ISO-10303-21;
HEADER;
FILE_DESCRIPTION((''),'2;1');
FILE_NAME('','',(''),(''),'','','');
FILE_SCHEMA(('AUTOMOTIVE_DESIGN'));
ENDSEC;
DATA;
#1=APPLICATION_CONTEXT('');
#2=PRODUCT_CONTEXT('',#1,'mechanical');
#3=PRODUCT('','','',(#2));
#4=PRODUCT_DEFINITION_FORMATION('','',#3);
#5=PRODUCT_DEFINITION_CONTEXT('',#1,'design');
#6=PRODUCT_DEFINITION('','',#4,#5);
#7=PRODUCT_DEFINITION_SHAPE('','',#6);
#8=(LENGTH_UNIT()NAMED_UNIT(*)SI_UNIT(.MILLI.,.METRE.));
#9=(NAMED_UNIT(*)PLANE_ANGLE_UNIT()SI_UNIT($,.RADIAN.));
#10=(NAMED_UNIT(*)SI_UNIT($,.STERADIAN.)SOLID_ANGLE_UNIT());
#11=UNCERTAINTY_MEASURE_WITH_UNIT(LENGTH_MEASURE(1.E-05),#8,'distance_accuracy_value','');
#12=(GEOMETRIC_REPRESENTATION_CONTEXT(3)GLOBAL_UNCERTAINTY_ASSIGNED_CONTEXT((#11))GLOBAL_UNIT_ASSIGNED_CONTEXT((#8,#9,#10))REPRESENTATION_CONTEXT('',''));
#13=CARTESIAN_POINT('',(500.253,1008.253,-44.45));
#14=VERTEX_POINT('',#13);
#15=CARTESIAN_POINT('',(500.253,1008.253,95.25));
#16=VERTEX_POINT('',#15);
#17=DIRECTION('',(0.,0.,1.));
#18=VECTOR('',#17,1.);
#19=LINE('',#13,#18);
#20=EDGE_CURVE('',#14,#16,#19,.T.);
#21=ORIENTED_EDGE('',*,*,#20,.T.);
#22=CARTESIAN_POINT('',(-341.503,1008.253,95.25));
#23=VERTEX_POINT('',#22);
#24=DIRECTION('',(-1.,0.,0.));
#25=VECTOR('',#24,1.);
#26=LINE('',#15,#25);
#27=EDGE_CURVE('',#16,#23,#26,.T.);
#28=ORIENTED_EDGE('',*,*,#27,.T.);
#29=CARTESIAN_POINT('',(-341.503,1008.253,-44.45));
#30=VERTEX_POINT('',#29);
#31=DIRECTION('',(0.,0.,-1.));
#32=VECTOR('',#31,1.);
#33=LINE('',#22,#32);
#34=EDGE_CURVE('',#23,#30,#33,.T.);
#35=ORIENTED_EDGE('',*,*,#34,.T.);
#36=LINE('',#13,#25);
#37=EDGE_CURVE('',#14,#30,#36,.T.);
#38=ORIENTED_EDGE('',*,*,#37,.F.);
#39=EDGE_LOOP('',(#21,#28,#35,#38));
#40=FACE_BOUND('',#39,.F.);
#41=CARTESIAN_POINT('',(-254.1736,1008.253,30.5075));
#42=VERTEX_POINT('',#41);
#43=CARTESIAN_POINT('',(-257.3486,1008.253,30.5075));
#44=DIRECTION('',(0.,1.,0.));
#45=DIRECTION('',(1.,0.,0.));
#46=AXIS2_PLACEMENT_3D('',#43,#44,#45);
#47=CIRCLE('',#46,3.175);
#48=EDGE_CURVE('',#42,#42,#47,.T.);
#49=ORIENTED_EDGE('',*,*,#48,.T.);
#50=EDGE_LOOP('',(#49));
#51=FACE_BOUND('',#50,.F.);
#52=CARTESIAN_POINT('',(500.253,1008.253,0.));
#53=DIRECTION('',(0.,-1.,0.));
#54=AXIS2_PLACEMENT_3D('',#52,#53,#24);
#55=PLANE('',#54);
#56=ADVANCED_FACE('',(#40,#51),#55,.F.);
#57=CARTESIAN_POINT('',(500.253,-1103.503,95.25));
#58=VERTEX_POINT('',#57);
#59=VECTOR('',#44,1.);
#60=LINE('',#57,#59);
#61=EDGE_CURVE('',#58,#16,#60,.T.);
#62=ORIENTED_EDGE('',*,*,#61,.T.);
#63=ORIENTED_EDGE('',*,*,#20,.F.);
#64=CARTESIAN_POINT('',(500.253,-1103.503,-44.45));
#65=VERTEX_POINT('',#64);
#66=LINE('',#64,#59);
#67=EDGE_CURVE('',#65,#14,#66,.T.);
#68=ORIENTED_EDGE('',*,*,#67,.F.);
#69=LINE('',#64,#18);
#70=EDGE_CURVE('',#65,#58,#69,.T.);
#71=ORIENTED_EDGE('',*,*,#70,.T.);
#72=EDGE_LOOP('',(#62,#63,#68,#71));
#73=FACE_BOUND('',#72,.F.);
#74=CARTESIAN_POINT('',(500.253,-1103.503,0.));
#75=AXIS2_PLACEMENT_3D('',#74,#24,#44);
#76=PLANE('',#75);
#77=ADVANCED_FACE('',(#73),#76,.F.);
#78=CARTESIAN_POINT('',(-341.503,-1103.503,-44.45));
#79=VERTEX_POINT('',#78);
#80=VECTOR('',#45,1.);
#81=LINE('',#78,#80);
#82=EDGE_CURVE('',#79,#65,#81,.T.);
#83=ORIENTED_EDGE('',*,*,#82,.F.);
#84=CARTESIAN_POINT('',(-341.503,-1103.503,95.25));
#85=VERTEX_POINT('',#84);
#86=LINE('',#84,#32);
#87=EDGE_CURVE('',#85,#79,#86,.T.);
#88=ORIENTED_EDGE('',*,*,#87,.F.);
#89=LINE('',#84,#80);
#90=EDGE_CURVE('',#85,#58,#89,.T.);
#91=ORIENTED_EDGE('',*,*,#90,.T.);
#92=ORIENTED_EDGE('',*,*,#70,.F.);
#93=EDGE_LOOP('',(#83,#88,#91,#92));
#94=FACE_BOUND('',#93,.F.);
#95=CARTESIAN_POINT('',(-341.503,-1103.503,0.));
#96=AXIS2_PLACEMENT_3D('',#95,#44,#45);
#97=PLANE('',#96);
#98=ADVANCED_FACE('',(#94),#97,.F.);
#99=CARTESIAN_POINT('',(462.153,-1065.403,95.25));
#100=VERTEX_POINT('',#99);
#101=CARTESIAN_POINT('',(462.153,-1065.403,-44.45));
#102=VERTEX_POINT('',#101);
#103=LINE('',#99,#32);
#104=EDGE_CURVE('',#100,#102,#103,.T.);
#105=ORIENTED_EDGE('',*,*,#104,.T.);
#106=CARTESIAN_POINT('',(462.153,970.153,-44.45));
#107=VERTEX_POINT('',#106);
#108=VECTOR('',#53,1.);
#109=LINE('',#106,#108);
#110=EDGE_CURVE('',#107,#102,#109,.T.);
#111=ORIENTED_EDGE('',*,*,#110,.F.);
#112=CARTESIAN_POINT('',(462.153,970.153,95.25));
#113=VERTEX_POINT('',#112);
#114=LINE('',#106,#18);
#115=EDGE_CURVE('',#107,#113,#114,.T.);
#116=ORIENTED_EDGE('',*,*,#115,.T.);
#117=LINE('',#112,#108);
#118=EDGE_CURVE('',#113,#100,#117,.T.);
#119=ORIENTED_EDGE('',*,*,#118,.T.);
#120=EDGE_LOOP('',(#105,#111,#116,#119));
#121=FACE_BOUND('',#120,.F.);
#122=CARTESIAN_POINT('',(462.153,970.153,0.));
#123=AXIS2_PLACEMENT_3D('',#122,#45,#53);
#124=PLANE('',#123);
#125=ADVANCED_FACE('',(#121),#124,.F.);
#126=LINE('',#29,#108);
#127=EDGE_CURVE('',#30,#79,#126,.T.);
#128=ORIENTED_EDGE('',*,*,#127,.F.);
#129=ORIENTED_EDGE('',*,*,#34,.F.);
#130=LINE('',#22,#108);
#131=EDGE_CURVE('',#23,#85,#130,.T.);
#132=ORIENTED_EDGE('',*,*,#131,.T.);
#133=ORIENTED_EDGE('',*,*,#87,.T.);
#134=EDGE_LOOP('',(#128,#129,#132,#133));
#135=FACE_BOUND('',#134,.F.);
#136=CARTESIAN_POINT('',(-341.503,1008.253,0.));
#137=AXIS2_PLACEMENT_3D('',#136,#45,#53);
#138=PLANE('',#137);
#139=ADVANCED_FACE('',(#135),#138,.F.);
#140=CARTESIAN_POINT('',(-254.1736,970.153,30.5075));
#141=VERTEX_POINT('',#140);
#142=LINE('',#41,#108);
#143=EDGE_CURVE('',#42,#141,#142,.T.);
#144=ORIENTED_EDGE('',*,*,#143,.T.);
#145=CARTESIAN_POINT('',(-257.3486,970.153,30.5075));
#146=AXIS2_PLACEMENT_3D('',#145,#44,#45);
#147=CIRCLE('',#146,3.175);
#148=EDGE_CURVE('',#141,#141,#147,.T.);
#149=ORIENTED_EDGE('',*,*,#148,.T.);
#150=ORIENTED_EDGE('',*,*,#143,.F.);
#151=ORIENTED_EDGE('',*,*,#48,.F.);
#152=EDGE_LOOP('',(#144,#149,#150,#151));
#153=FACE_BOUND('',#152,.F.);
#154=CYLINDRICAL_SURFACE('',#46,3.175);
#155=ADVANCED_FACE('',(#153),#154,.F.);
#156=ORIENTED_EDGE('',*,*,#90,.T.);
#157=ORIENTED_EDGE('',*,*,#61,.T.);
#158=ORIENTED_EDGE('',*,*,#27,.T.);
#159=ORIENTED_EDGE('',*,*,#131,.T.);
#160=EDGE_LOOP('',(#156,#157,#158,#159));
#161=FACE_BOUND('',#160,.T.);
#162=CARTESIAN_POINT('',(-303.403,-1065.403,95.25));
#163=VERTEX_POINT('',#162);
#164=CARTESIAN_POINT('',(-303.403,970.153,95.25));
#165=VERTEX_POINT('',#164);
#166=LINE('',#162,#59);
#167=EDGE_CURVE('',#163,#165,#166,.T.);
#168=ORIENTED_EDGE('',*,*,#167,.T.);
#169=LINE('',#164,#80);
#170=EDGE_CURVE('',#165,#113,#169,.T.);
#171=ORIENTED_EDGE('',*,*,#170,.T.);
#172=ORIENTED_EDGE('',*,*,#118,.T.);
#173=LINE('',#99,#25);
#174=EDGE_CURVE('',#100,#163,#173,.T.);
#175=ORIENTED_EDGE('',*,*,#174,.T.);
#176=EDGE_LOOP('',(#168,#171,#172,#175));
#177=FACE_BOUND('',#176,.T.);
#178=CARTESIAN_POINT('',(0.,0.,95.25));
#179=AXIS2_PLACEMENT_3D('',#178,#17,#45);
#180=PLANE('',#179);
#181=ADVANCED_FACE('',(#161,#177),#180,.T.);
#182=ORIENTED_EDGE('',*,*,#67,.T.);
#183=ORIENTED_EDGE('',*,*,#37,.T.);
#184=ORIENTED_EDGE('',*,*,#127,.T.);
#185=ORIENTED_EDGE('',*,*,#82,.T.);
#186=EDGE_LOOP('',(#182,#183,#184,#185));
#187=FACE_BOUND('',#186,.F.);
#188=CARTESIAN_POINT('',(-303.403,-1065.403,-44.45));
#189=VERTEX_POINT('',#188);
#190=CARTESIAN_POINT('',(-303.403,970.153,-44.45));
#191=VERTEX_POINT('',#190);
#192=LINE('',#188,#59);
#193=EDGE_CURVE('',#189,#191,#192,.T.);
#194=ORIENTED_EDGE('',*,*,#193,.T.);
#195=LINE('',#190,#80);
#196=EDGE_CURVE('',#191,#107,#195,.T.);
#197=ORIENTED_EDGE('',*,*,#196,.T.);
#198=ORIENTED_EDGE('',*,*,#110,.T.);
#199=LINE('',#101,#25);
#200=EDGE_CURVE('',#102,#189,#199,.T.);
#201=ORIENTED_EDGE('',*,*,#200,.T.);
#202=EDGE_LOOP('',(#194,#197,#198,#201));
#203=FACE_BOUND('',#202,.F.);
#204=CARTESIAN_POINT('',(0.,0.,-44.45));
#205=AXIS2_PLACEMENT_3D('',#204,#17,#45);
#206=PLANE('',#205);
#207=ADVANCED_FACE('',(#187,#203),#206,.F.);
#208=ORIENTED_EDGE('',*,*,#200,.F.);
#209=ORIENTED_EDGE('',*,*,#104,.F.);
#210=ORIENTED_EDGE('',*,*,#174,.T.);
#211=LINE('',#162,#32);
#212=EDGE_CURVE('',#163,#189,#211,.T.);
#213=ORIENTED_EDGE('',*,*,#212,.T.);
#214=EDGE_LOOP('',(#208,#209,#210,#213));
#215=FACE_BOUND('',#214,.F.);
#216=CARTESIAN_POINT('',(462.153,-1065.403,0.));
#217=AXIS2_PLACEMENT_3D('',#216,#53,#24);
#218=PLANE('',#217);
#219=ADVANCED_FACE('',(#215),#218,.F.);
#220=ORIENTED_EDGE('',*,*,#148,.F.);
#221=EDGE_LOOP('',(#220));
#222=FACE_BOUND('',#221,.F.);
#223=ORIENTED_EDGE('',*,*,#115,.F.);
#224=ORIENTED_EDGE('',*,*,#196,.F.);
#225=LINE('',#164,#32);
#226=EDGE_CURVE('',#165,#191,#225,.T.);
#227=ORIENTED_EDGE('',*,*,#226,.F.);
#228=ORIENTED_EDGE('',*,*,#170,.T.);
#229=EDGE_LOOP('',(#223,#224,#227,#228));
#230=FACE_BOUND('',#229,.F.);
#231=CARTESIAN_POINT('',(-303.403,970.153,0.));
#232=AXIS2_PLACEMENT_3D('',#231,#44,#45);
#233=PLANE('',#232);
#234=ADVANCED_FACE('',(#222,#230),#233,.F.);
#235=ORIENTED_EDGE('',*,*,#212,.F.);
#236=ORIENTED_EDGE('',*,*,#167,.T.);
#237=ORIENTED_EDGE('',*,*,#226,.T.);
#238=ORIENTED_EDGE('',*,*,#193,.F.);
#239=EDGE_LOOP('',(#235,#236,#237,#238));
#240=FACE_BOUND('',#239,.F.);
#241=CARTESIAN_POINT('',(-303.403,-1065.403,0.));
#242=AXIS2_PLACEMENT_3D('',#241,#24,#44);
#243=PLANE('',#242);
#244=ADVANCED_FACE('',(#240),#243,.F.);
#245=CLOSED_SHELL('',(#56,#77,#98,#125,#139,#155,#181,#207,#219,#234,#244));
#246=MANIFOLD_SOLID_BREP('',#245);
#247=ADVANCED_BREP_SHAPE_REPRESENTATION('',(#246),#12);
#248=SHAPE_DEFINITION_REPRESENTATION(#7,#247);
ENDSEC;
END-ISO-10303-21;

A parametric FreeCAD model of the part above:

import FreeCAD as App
import Part
import Sketcher
Q = App.Units.Quantity

doc = App.newDocument("Part")
body = doc.addObject("PartDesign::Body", "Body")

# Sketch on XY plane
sketch1 = body.newObject("Sketcher::SketchObject", "Sketch")
sketch1.AttachmentSupport = (doc.getObject("XY_Plane"), [""])
sketch1.MapMode = "FlatFace"
sketch1.addGeometry([
    Part.LineSegment(App.Vector(-342, -1104, 0), App.Vector(500, -1104, 0)),  # 0
    Part.LineSegment(App.Vector(500, -1104, 0), App.Vector(500, 1008, 0)),  # 1
    Part.LineSegment(App.Vector(500, 1008, 0), App.Vector(-342, 1008, 0)),  # 2
    Part.LineSegment(App.Vector(-342, 1008, 0), App.Vector(-342, -1104, 0)),  # 3
    Part.LineSegment(App.Vector(-303, 970, 0), App.Vector(462, 970, 0)),  # 4
    Part.LineSegment(App.Vector(462, 970, 0), App.Vector(462, -1065, 0)),  # 5
    Part.LineSegment(App.Vector(462, -1065, 0), App.Vector(-303, -1065, 0)),  # 6
    Part.LineSegment(App.Vector(-303, -1065, 0), App.Vector(-303, 970, 0)),  # 7
], False)
sketch1.addConstraint([
    Sketcher.Constraint("Coincident", 0, 2, 1, 1),
    Sketcher.Constraint("Coincident", 1, 2, 2, 1),
    Sketcher.Constraint("Coincident", 2, 2, 3, 1),
    Sketcher.Constraint("Coincident", 3, 2, 0, 1),
    Sketcher.Constraint("Coincident", 4, 2, 5, 1),
    Sketcher.Constraint("Coincident", 5, 2, 6, 1),
    Sketcher.Constraint("Coincident", 6, 2, 7, 1),
    Sketcher.Constraint("Coincident", 7, 2, 4, 1),
    Sketcher.Constraint("Horizontal", 0),
    Sketcher.Constraint("Vertical", 1),
    Sketcher.Constraint("Horizontal", 2),
    Sketcher.Constraint("Vertical", 3),
    Sketcher.Constraint("Horizontal", 4),
    Sketcher.Constraint("Vertical", 5),
    Sketcher.Constraint("Horizontal", 6),
    Sketcher.Constraint("Vertical", 7),
    Sketcher.Constraint("DistanceX", 4, 2, 1, 2, Q("1.5 in")),
    Sketcher.Constraint("DistanceY", 4, 2, 1, 2, Q("1.5 in")),
    Sketcher.Constraint("DistanceY", 0, 2, 5, 2, Q("1.5 in")),
    Sketcher.Constraint("DistanceX", 3, 2, 6, 2, Q("1.5 in")),
    Sketcher.Constraint("DistanceX", 0, 1, 0, 2, Q("33.14 in")),
    Sketcher.Constraint("DistanceY", 1, 1, 1, 2, Q("83.14 in")),
    Sketcher.Constraint("DistanceX", -1, 1, 0, 2, Q("19.695 in")),
    Sketcher.Constraint("DistanceY", 0, 2, -1, 1, Q("43.445 in")),
])
pad1 = body.newObject("PartDesign::Pad", "Pad")
pad1.Profile = sketch1
pad1.Type = "TwoLengths"
pad1.Length = Q("3.75 in")
pad1.Length2 = Q("1.75 in")

# Sketch on XZ plane
sketch2 = body.newObject("Sketcher::SketchObject", "Sketch001")
sketch2.AttachmentSupport = (doc.getObject("XZ_Plane"), [""])
sketch2.MapMode = "FlatFace"
sketch2.AttachmentOffset = App.Placement(App.Vector(0, 0, -39.695 * 25.4), App.Rotation())
sketch2.addGeometry(Part.Circle(App.Vector(-257.3, 30.5, 0), App.Vector(0, 0, 1), 3.2), False)
sketch2.addConstraint([
    Sketcher.Constraint("Diameter", 0, Q("0.25 in")),
    Sketcher.Constraint("DistanceX", 0, 3, -1, 1, Q("257.3486 mm")),
    Sketcher.Constraint("DistanceY", -1, 1, 0, 3, Q("30.5075 mm")),
])
pocket1 = body.newObject("PartDesign::Pocket", "Pocket")
pocket1.Profile = sketch2
pocket1.Length = Q("3.75 in")
pocket1.Reversed = True

doc.recompute()
